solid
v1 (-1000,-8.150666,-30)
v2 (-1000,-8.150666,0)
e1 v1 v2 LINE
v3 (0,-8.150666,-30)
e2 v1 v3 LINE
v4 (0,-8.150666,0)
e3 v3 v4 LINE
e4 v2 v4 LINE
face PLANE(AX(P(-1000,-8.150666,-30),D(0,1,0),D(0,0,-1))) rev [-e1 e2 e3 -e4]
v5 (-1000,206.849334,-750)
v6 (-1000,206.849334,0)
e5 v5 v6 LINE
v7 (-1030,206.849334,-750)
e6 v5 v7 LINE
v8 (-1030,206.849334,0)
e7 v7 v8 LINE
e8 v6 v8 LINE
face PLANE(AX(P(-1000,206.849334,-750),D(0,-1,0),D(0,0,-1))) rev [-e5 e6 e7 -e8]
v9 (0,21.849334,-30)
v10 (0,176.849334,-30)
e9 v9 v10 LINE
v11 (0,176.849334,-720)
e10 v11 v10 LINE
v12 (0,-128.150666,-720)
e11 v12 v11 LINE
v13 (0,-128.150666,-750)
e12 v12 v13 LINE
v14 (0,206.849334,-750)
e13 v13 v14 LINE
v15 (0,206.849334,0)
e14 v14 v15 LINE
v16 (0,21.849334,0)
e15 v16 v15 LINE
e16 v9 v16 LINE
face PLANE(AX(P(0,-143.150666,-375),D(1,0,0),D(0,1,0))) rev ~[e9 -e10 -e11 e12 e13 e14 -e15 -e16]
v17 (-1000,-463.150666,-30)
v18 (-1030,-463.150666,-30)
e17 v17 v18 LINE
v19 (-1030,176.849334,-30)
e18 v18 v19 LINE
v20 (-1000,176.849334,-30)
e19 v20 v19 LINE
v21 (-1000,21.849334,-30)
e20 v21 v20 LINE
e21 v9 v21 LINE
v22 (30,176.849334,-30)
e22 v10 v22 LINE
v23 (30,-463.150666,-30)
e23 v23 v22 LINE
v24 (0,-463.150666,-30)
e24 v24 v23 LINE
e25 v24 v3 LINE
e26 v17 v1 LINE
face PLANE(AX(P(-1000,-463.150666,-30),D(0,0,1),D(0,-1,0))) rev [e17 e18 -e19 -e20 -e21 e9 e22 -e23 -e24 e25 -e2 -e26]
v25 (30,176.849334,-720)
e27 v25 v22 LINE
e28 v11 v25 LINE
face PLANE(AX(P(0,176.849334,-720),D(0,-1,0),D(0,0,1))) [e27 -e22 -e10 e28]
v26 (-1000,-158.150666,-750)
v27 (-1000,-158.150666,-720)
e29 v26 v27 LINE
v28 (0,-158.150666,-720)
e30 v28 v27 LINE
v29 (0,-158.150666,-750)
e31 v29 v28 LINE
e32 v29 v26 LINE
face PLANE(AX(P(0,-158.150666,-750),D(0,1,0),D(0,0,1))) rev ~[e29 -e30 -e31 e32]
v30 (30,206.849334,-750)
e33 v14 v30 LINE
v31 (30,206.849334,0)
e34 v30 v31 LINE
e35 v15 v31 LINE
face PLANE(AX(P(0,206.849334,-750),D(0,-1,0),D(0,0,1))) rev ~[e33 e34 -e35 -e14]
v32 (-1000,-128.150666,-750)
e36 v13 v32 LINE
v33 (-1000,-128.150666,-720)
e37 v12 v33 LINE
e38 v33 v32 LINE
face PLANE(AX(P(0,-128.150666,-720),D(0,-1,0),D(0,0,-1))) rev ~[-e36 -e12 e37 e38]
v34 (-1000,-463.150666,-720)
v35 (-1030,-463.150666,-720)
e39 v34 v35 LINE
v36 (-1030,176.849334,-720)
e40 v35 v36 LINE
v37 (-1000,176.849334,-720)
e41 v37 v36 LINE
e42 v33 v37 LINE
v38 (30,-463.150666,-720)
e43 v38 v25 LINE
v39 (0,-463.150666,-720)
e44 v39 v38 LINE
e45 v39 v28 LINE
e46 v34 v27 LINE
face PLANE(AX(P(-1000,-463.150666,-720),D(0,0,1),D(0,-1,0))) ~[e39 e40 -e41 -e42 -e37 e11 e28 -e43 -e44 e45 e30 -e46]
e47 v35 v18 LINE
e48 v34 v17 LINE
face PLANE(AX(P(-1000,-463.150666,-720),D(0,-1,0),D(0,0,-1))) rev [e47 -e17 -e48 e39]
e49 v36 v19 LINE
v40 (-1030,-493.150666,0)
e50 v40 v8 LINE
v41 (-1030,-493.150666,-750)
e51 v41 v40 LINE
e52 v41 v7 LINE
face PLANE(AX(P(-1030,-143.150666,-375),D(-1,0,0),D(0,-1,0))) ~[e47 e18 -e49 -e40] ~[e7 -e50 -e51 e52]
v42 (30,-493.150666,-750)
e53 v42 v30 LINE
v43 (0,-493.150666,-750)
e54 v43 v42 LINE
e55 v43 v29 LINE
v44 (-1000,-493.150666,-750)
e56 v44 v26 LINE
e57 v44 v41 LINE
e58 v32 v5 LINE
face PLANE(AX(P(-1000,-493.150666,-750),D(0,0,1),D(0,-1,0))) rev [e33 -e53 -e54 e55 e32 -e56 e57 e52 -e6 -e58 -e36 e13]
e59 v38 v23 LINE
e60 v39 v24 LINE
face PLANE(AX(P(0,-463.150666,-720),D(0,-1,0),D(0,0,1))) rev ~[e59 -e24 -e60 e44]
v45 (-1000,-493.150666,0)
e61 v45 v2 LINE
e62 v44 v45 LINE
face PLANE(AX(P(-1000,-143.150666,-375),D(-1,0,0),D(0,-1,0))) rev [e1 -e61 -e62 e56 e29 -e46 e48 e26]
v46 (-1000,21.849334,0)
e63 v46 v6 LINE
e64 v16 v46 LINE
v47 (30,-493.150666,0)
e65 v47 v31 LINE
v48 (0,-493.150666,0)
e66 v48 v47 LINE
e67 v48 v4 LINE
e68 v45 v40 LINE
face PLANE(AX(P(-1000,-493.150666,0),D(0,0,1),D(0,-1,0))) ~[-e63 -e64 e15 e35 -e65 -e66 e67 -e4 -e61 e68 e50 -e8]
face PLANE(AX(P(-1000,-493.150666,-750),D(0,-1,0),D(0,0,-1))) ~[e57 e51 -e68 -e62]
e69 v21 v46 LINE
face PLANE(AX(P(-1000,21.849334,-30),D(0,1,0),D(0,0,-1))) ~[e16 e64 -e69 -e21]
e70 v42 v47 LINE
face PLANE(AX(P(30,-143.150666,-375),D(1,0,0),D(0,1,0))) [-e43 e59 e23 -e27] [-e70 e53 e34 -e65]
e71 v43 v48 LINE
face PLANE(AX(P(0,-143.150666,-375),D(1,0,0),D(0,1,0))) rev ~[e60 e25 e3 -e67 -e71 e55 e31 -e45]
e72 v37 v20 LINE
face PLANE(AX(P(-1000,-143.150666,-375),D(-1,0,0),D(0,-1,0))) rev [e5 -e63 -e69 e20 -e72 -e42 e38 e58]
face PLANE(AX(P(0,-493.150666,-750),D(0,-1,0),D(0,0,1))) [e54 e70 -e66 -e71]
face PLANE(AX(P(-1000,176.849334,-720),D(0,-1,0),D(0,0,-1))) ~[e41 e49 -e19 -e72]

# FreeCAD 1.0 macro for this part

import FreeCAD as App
import Part
import Sketcher

V = App.Vector
Q = App.Units.Quantity


def add_polygon(sketch, points):
    """Adds a closed chain of lines whose ends are joined by coincident constraints."""
    first, n = sketch.GeometryCount, len(points)
    for a, b in zip(points, points[1:] + points[:1]):
        sketch.addGeometry(Part.LineSegment(App.Vector(*a, 0), App.Vector(*b, 0)), False)
    for i in range(n):
        sketch.addConstraint(Sketcher.Constraint("Coincident", first + i, 2, first + (i + 1) % n, 1))

doc = App.newDocument("Part")
body = doc.addObject("PartDesign::Body", "Body")

# Sketch on YZ plane
sketch1 = body.newObject("Sketcher::SketchObject", "Sketch")
sketch1.AttachmentSupport = (doc.getObject("YZ_Plane"), [""])
sketch1.MapMode = "FlatFace"
add_polygon(sketch1, [(-493, 0), (-493, -750), (207, -750), (207, 0)])  # lines 0-3
add_polygon(sketch1, [(177, -720), (-463, -720), (-463, -30), (177, -30)])  # lines 4-7
sketch1.addConstraint([
    Sketcher.Constraint("Vertical", 0),
    Sketcher.Constraint("Horizontal", 1),
    Sketcher.Constraint("Vertical", 2),
    Sketcher.Constraint("Horizontal", 3),
    Sketcher.Constraint("Horizontal", 4),
    Sketcher.Constraint("Vertical", 5),
    Sketcher.Constraint("Horizontal", 6),
    Sketcher.Constraint("Vertical", 7),
    Sketcher.Constraint("PointOnObject", 2, 2, -1),
    Sketcher.Constraint("DistanceX", 1, 1, 1, 2, Q("700 mm")),
    Sketcher.Constraint("DistanceX", 4, 2, 4, 1, Q("640 mm")),
    Sketcher.Constraint("DistanceY", 0, 2, 0, 1, Q("750 mm")),
    Sketcher.Constraint("DistanceY", 5, 1, 5, 2, Q("690 mm")),
    Sketcher.Constraint("DistanceY", 4, 2, -1, 1, Q("720 mm")),
    Sketcher.Constraint("DistanceX", 0, 2, 4, 2, Q("30 mm")),
    Sketcher.Constraint("DistanceX", 0, 2, -1, 1, Q("493.150666 mm")),
])
pad1 = body.newObject("PartDesign::Pad", "Pad")
pad1.Profile = sketch1
pad1.Length = 30

# Sketch on YZ plane
sketch2 = body.newObject("Sketcher::SketchObject", "Sketch001")
sketch2.AttachmentSupport = (doc.getObject("YZ_Plane"), [""])
sketch2.MapMode = "FlatFace"
add_polygon(sketch2, [(22, 0), (22, -30), (-8, -30), (-8, 0)])  # lines 0-3
sketch2.addConstraint([
    Sketcher.Constraint("Vertical", 0),
    Sketcher.Constraint("Horizontal", 1),
    Sketcher.Constraint("Vertical", 2),
    Sketcher.Constraint("Horizontal", 3),
    Sketcher.Constraint("PointOnObject", 2, 2, -1),
    Sketcher.Constraint("Equal", 3, 0),
    Sketcher.Constraint("DistanceX", 1, 2, 1, 1, Q("30 mm")),
    Sketcher.Constraint("DistanceX", -1, 1, 0, 2, Q("21.849334 mm")),
])
pad2 = body.newObject("PartDesign::Pad", "Pad001")
pad2.Profile = sketch2
pad2.Length = 500
pad2.Reversed = True
body2 = doc.addObject("PartDesign::Body", "Body001")
doc.recompute()

body2.BaseFeature = body
doc.recompute()

mirroring = doc.addObject("Part::Mirroring", "Mirroring")
mirroring.Source = body
mirroring.Base = V(-500, 6.849334, -15)
mirroring.Normal = V(-1, 0, 0)
body3 = doc.addObject("PartDesign::Body", "Body002")
body3.BaseFeature = mirroring
boolean = body2.newObject("PartDesign::Boolean", "Boolean")
boolean.Type = "Fuse"
boolean.addObjects([body3])
doc.recompute()

# Sketch on YZ plane
sketch3 = body2.newObject("Sketcher::SketchObject", "Sketch002")
sketch3.AttachmentSupport = (doc.getObject("YZ_Plane001"), [""])
sketch3.MapMode = "FlatFace"
add_polygon(sketch3, [(-128, -750), (-158, -750), (-158, -720), (-128, -720)])  # lines 0-3
sketch3.addConstraint([
    Sketcher.Constraint("Horizontal", 0),
    Sketcher.Constraint("Vertical", 1),
    Sketcher.Constraint("Horizontal", 2),
    Sketcher.Constraint("Vertical", 3),
    Sketcher.Constraint("Equal", 2, 1),
    Sketcher.Constraint("DistanceX", 0, 2, 0, 1, Q("30 mm")),
    Sketcher.Constraint("DistanceY", 0, 2, -1, 1, Q("750 mm")),
    Sketcher.Constraint("DistanceX", 0, 2, -1, 1, Q("158.150666 mm")),
])
pad3 = body2.newObject("PartDesign::Pad", "Pad002")
pad3.Profile = sketch3
pad3.Type = "UpToLast"
pad3.Reversed = True
mirroring.Visibility = False

doc.recompute()
